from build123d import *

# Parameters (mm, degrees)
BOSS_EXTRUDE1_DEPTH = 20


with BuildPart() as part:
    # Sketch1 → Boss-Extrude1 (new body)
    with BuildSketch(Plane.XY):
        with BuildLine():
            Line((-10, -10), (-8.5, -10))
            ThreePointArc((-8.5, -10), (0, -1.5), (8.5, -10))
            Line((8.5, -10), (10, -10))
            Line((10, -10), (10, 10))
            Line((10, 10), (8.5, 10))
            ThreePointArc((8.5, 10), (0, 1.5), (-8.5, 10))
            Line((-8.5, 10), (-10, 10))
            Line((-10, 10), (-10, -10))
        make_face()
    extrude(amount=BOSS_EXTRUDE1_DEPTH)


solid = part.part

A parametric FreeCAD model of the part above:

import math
import FreeCAD as App
import Part
import Sketcher
from FreeCAD import Vector

doc = App.newDocument("Part")
body = doc.addObject("PartDesign::Body", "Body")

sketch1 = body.newObject("Sketcher::SketchObject", "Sketch")
sketch1.AttachmentSupport = (doc.getObject("XY_Plane"), [""])
sketch1.MapMode = "FlatFace"
sketch1.addGeometry([
    Part.LineSegment(Vector(-10, -10, 0), Vector(-8.5, -10, 0)),
    Part.ArcOfCircle(Part.Circle(Vector(0, -10, 0), Vector(0, 0, 1), 8.5), math.radians(0), math.radians(180)),
    Part.LineSegment(Vector(8.5, -10, 0), Vector(10, -10, 0)),
    Part.LineSegment(Vector(10, -10, 0), Vector(10, 10, 0)),
    Part.LineSegment(Vector(10, 10, 0), Vector(8.5, 10, 0)),
    Part.ArcOfCircle(Part.Circle(Vector(0, 10, 0), Vector(0, 0, 1), 8.5), math.radians(180), math.radians(360)),
    Part.LineSegment(Vector(-8.5, 10, 0), Vector(-10, 10, 0)),
    Part.LineSegment(Vector(-10, 10, 0), Vector(-10, -10, 0)),
], False)
sketch1.addConstraint([
    Sketcher.Constraint("Coincident", 0, 2, 1, 2),
    Sketcher.Constraint("Coincident", 1, 1, 2, 1),
    Sketcher.Constraint("Coincident", 2, 2, 3, 1),
    Sketcher.Constraint("Coincident", 3, 2, 4, 1),
    Sketcher.Constraint("Coincident", 4, 2, 5, 2),
    Sketcher.Constraint("Coincident", 5, 1, 6, 1),
    Sketcher.Constraint("Coincident", 6, 2, 7, 1),
    Sketcher.Constraint("Coincident", 7, 2, 0, 1),
    Sketcher.Constraint("Horizontal", 0),
    Sketcher.Constraint("Horizontal", 2),
    Sketcher.Constraint("Vertical", 3),
    Sketcher.Constraint("Horizontal", 4),
    Sketcher.Constraint("Horizontal", 6),
    Sketcher.Constraint("Vertical", 7),
    Sketcher.Constraint("Equal", 1, 5),
    Sketcher.Constraint("Symmetric", 1, 3, 5, 3, -1, 1),
    Sketcher.Constraint("Symmetric", 2, 2, 6, 2, -1, 1),
    Sketcher.Constraint("Symmetric", 0, 2, 1, 1, -2),
    Sketcher.Constraint("Horizontal", 1, 3, 0, 2),
    Sketcher.Constraint("Horizontal", 5, 3, 3, 2),
    Sketcher.Constraint("Radius", 1, 8.5),
    Sketcher.Constraint("DistanceY", 3, 1, 3, 2, 20.0),
    Sketcher.Constraint("DistanceX", 0, 1, 0, 2, 1.5),
])
pad1 = body.newObject("PartDesign::Pad", "Pad")
pad1.Profile = sketch1
pad1.Length = 20

doc.recompute()
